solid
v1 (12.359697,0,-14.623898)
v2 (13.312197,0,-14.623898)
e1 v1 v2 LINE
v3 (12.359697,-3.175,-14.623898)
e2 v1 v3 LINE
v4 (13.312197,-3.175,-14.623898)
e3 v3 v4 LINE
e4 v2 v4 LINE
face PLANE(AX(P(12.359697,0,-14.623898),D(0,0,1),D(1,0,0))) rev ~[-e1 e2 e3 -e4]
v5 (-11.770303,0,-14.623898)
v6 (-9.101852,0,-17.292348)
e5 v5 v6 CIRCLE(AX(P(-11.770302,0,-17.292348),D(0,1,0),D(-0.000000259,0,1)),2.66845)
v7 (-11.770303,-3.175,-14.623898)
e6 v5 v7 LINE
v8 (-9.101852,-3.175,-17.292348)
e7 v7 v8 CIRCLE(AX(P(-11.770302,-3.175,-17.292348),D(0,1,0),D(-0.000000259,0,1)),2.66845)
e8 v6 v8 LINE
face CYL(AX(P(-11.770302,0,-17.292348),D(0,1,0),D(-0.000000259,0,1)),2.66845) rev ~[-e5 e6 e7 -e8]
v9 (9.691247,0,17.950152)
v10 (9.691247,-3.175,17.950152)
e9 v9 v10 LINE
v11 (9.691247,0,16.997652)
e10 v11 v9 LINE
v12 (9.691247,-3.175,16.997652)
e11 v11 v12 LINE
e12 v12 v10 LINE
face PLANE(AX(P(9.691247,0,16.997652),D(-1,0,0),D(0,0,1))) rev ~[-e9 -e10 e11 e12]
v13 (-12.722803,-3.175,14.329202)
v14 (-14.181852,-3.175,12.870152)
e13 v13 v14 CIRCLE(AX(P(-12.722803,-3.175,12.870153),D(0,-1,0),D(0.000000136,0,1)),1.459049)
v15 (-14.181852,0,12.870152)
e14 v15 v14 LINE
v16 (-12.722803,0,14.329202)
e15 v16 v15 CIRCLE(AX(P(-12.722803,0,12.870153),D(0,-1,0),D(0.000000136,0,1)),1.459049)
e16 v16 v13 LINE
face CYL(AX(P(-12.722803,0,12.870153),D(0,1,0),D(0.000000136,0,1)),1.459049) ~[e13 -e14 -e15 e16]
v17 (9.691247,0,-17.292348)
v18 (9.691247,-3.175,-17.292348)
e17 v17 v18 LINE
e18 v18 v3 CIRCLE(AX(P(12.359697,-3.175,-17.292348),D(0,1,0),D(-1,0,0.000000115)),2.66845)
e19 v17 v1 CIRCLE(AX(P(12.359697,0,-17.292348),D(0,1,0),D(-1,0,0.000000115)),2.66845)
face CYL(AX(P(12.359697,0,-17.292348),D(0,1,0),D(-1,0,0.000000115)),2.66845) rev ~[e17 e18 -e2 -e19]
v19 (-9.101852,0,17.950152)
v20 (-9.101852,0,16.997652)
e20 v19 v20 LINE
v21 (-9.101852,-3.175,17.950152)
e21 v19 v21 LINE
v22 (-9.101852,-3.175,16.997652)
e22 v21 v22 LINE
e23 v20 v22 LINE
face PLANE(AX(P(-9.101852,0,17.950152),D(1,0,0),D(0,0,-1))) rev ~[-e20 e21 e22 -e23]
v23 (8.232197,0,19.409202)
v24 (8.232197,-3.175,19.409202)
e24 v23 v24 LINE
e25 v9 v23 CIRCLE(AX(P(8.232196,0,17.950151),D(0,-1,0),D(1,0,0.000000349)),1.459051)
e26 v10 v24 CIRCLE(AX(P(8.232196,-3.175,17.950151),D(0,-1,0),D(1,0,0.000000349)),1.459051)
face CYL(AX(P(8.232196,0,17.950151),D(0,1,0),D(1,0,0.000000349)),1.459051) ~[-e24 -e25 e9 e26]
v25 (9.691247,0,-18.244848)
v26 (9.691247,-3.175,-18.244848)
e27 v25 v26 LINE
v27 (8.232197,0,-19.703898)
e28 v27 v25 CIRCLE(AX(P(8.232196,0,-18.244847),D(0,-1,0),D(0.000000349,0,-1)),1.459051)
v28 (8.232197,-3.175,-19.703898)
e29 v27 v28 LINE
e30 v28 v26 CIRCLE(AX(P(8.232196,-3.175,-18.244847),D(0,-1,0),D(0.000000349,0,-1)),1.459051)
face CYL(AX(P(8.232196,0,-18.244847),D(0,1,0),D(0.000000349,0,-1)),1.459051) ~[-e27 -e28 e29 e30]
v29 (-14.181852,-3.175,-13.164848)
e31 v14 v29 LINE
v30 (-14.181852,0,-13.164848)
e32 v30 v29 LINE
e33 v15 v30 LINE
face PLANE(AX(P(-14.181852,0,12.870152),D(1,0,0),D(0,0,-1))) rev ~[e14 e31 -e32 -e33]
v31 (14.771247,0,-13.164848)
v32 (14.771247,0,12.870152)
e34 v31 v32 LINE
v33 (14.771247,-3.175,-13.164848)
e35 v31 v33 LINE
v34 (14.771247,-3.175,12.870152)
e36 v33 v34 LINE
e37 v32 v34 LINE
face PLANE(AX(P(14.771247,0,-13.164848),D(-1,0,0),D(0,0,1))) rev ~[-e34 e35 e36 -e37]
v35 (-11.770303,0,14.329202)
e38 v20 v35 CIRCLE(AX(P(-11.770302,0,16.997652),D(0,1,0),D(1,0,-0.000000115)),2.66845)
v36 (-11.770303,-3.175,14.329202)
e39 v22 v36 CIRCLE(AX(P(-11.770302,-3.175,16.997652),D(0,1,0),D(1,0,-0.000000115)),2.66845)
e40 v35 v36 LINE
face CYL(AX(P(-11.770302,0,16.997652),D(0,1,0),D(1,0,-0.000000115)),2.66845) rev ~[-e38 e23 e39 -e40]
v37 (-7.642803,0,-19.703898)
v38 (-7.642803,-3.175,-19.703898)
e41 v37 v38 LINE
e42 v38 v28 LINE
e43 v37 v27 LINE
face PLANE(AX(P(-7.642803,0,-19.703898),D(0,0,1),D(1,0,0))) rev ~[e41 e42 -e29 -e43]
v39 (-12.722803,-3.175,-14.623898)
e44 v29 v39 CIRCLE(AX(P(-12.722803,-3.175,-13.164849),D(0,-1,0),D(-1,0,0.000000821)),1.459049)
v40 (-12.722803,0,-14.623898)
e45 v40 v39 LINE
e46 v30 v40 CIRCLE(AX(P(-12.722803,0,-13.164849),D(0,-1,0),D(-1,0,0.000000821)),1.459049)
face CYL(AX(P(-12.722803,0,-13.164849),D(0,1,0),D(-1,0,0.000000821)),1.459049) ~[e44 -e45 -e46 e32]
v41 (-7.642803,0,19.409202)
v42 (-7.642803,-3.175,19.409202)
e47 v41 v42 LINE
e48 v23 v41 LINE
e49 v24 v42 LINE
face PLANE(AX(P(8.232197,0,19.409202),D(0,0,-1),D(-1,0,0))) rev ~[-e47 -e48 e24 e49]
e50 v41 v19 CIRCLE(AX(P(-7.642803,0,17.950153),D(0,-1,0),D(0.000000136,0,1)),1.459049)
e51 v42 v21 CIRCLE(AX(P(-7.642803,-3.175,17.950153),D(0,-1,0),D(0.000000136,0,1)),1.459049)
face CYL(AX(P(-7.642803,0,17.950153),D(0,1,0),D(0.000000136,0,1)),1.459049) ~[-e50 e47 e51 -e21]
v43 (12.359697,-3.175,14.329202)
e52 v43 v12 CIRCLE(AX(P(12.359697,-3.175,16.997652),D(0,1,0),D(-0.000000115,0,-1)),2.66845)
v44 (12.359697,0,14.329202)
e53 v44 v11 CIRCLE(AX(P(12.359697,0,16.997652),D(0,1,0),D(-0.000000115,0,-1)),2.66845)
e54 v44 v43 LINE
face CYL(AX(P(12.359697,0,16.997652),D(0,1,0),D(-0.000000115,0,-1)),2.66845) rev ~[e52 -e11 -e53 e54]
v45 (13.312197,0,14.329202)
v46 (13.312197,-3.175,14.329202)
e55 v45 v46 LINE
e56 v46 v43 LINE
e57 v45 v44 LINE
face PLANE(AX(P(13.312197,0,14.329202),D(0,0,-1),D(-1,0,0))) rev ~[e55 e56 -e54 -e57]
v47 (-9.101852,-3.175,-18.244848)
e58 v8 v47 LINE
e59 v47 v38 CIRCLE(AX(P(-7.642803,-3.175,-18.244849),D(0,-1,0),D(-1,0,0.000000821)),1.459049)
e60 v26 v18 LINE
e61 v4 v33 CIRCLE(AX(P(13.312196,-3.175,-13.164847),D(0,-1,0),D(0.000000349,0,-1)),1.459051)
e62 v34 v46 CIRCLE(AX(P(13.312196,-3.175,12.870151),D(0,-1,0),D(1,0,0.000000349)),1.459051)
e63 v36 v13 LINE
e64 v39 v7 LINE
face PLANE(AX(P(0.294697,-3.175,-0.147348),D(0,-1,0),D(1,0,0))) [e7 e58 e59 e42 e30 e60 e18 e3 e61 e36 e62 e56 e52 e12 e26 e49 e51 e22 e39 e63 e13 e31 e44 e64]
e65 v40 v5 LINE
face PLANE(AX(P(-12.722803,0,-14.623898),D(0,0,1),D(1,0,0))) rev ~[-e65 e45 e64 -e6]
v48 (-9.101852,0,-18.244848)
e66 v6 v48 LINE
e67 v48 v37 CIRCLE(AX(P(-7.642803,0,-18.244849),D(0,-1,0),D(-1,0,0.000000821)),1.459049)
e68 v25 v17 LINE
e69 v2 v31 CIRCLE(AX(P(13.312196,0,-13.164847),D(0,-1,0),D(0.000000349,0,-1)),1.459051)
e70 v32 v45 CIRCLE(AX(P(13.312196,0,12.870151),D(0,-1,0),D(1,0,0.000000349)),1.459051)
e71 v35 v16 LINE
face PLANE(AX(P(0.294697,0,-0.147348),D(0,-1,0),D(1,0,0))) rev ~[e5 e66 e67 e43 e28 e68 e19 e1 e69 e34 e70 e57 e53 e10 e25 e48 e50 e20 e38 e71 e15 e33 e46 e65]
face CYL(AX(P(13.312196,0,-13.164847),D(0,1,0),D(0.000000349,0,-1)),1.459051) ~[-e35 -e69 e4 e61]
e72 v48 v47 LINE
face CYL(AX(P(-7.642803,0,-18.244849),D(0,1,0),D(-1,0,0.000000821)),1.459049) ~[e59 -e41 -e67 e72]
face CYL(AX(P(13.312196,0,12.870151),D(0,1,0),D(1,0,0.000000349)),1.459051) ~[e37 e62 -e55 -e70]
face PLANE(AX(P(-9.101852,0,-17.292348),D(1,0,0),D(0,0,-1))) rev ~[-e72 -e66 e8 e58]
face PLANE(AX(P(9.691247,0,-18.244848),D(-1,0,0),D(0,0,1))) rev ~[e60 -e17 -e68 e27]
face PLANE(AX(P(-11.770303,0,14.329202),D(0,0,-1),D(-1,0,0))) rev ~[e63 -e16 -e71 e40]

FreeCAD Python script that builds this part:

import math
import FreeCAD as App
import Part
import Sketcher
Q = App.Units.Quantity

doc = App.newDocument("Part")
body = doc.addObject("PartDesign::Body", "Body")

# Sketch on XZ plane
sketch1 = body.newObject("Sketcher::SketchObject", "Sketch")
sketch1.AttachmentSupport = (doc.getObject("XZ_Plane"), [""])
sketch1.MapMode = "FlatFace"
sketch1.addGeometry([
    Part.LineSegment(App.Vector(-11.8, 14.3, 0), App.Vector(-12.7, 14.3, 0)),  # 0
    Part.ArcOfCircle(Part.Circle(App.Vector(-12.7, 12.9, 0), App.Vector(0, 0, 1), 1.5), math.radians(90), math.radians(180)),  # 1
    Part.LineSegment(App.Vector(-14.2, 12.9, 0), App.Vector(-14.2, -13.2, 0)),  # 2
    Part.ArcOfCircle(Part.Circle(App.Vector(-12.7, -13.2, 0), App.Vector(0, 0, 1), 1.5), math.radians(180), math.radians(270)),  # 3
    Part.LineSegment(App.Vector(-12.7, -14.6, 0), App.Vector(-11.8, -14.6, 0)),  # 4
    Part.ArcOfCircle(Part.Circle(App.Vector(-11.8, -17.3, 0), App.Vector(0, 0, 1), 2.7), math.radians(0), math.radians(90)),  # 5
    Part.LineSegment(App.Vector(-9.1, -17.3, 0), App.Vector(-9.1, -18.2, 0)),  # 6
    Part.ArcOfCircle(Part.Circle(App.Vector(-7.6, -18.2, 0), App.Vector(0, 0, 1), 1.5), math.radians(180), math.radians(270)),  # 7
    Part.LineSegment(App.Vector(-7.6, -19.7, 0), App.Vector(8.2, -19.7, 0)),  # 8
    Part.ArcOfCircle(Part.Circle(App.Vector(8.2, -18.2, 0), App.Vector(0, 0, 1), 1.5), math.radians(-90), math.radians(0)),  # 9
    Part.LineSegment(App.Vector(9.7, -18.2, 0), App.Vector(9.7, -17.3, 0)),  # 10
    Part.ArcOfCircle(Part.Circle(App.Vector(12.4, -17.3, 0), App.Vector(0, 0, 1), 2.7), math.radians(90), math.radians(180)),  # 11
    Part.LineSegment(App.Vector(12.4, -14.6, 0), App.Vector(13.3, -14.6, 0)),  # 12
    Part.ArcOfCircle(Part.Circle(App.Vector(13.3, -13.2, 0), App.Vector(0, 0, 1), 1.5), math.radians(-90), math.radians(0)),  # 13
    Part.LineSegment(App.Vector(14.8, -13.2, 0), App.Vector(14.8, 12.9, 0)),  # 14
    Part.ArcOfCircle(Part.Circle(App.Vector(13.3, 12.9, 0), App.Vector(0, 0, 1), 1.5), math.radians(0), math.radians(90)),  # 15
    Part.LineSegment(App.Vector(13.3, 14.3, 0), App.Vector(12.4, 14.3, 0)),  # 16
    Part.ArcOfCircle(Part.Circle(App.Vector(12.4, 17, 0), App.Vector(0, 0, 1), 2.7), math.radians(-180), math.radians(-90)),  # 17
    Part.LineSegment(App.Vector(9.7, 17, 0), App.Vector(9.7, 18, 0)),  # 18
    Part.ArcOfCircle(Part.Circle(App.Vector(8.2, 18, 0), App.Vector(0, 0, 1), 1.5), math.radians(0), math.radians(90)),  # 19
    Part.LineSegment(App.Vector(8.2, 19.4, 0), App.Vector(-7.6, 19.4, 0)),  # 20
    Part.ArcOfCircle(Part.Circle(App.Vector(-7.6, 18, 0), App.Vector(0, 0, 1), 1.5), math.radians(90), math.radians(180)),  # 21
    Part.LineSegment(App.Vector(-9.1, 18, 0), App.Vector(-9.1, 17, 0)),  # 22
    Part.ArcOfCircle(Part.Circle(App.Vector(-11.8, 17, 0), App.Vector(0, 0, 1), 2.7), math.radians(-90), math.radians(0)),  # 23
], False)
sketch1.addConstraint([
    Sketcher.Constraint("Tangent", 0, 2, 1, 1),
    Sketcher.Constraint("Tangent", 1, 2, 2, 1),
    Sketcher.Constraint("Tangent", 2, 2, 3, 1),
    Sketcher.Constraint("Tangent", 3, 2, 4, 1),
    Sketcher.Constraint("Tangent", 4, 2, 5, 2),
    Sketcher.Constraint("Tangent", 5, 1, 6, 1),
    Sketcher.Constraint("Tangent", 6, 2, 7, 1),
    Sketcher.Constraint("Tangent", 7, 2, 8, 1),
    Sketcher.Constraint("Tangent", 8, 2, 9, 1),
    Sketcher.Constraint("Tangent", 9, 2, 10, 1),
    Sketcher.Constraint("Tangent", 10, 2, 11, 2),
    Sketcher.Constraint("Tangent", 11, 1, 12, 1),
    Sketcher.Constraint("Tangent", 12, 2, 13, 1),
    Sketcher.Constraint("Tangent", 13, 2, 14, 1),
    Sketcher.Constraint("Tangent", 14, 2, 15, 1),
    Sketcher.Constraint("Tangent", 15, 2, 16, 1),
    Sketcher.Constraint("Tangent", 16, 2, 17, 2),
    Sketcher.Constraint("Tangent", 17, 1, 18, 1),
    Sketcher.Constraint("Tangent", 18, 2, 19, 1),
    Sketcher.Constraint("Tangent", 19, 2, 20, 1),
    Sketcher.Constraint("Tangent", 20, 2, 21, 1),
    Sketcher.Constraint("Tangent", 21, 2, 22, 1),
    Sketcher.Constraint("Tangent", 22, 2, 23, 2),
    Sketcher.Constraint("Tangent", 23, 1, 0, 1),
    Sketcher.Constraint("Horizontal", 0),
    Sketcher.Constraint("Vertical", 2),
    Sketcher.Constraint("Horizontal", 4),
    Sketcher.Constraint("Vertical", 6),
    Sketcher.Constraint("Horizontal", 8),
    Sketcher.Constraint("Vertical", 10),
    Sketcher.Constraint("Horizontal", 12),
    Sketcher.Constraint("Vertical", 14),
    Sketcher.Constraint("Horizontal", 16),
    Sketcher.Constraint("Vertical", 18),
    Sketcher.Constraint("Horizontal", 20),
    Sketcher.Constraint("Vertical", 22),
    Sketcher.Constraint("Equal", 1, 3),
    Sketcher.Constraint("Equal", 3, 7),
    Sketcher.Constraint("Equal", 7, 9),
    Sketcher.Constraint("Equal", 5, 11),
    Sketcher.Constraint("Equal", 9, 13),
    Sketcher.Constraint("Equal", 13, 15),
    Sketcher.Constraint("Equal", 11, 17),
    Sketcher.Constraint("Equal", 15, 19),
    Sketcher.Constraint("Equal", 19, 21),
    Sketcher.Constraint("Equal", 17, 23),
    Sketcher.Constraint("Horizontal", 5, 3, 11, 3),
    Sketcher.Constraint("Horizontal", 1, 3, 15, 3),
    Sketcher.Constraint("Vertical", 11, 3, 17, 3),
    Sketcher.Constraint("Vertical", 7, 3, 21, 3),
    Sketcher.Constraint("Equal", 4, 12),
    Sketcher.Constraint("Equal", 16, 6),
    Sketcher.Constraint("Equal", 10, 18),
    Sketcher.Constraint("DistanceX", 3, 3, 7, 3, Q("0.2 in")),
    Sketcher.Constraint("DistanceX", 8, 1, 8, 2, Q("0.625 in")),
    Sketcher.Constraint("DistanceY", 2, 2, 2, 1, Q("1.025 in")),
    Sketcher.Constraint("DistanceX", 5, 3, 11, 3, Q("0.95 in")),
    Sketcher.Constraint("Radius", 1, 1.459049),
    Sketcher.Constraint("DistanceY", 11, 1, -1, 1, 14.623898),
    Sketcher.Constraint("DistanceX", 1, 2, -1, 1, 14.181852),
])
pad1 = body.newObject("PartDesign::Pad", "Pad")
pad1.Profile = sketch1
pad1.Length = Q("0.125 in")

doc.recompute()
